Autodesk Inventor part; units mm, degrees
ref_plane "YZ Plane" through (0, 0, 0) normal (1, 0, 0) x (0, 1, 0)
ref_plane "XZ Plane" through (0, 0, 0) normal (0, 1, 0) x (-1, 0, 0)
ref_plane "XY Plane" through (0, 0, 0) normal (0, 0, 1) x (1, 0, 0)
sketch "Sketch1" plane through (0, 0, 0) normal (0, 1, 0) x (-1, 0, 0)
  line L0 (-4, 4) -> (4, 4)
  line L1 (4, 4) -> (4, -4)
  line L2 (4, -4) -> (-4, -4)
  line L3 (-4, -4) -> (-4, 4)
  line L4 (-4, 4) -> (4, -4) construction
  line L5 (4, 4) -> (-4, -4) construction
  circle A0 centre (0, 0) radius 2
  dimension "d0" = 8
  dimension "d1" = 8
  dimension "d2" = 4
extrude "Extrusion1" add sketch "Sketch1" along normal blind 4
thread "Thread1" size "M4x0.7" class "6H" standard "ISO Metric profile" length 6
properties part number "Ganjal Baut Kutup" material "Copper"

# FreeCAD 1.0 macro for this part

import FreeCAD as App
import Part
import Sketcher

doc = App.newDocument("Part")
body = doc.addObject("PartDesign::Body", "Body")

# Sketch on XZ plane
sketch1 = body.newObject("Sketcher::SketchObject", "Sketch")
sketch1.AttachmentSupport = (doc.getObject("XZ_Plane"), [""])
sketch1.MapMode = "FlatFace"
sketch1.addGeometry([
    Part.LineSegment(App.Vector(-4, 4, 0), App.Vector(4, 4, 0)),  # 0
    Part.LineSegment(App.Vector(4, 4, 0), App.Vector(4, -4, 0)),  # 1
    Part.LineSegment(App.Vector(4, -4, 0), App.Vector(-4, -4, 0)),  # 2
    Part.LineSegment(App.Vector(-4, -4, 0), App.Vector(-4, 4, 0)),  # 3
    Part.Circle(App.Vector(0, 0, 0), App.Vector(0, 0, 1), 2),  # 4
], False)
sketch1.addConstraint([
    Sketcher.Constraint("Coincident", 0, 2, 1, 1),
    Sketcher.Constraint("Coincident", 1, 2, 2, 1),
    Sketcher.Constraint("Coincident", 2, 2, 3, 1),
    Sketcher.Constraint("Coincident", 3, 2, 0, 1),
    Sketcher.Constraint("Horizontal", 0),
    Sketcher.Constraint("Vertical", 1),
    Sketcher.Constraint("Horizontal", 2),
    Sketcher.Constraint("Vertical", 3),
    Sketcher.Constraint("Coincident", 4, 3, -1, 1),
    Sketcher.Constraint("Symmetric", 0, 2, 2, 2, -1, 1),
    Sketcher.Constraint("Equal", 2, 1),
    Sketcher.Constraint("Diameter", 4, 4.0),
    Sketcher.Constraint("DistanceX", 0, 1, 0, 2, 8.0),
])
pad1 = body.newObject("PartDesign::Pad", "Pad")
pad1.Profile = sketch1
pad1.Length = 4
pad1.Reversed = True

doc.recompute()
